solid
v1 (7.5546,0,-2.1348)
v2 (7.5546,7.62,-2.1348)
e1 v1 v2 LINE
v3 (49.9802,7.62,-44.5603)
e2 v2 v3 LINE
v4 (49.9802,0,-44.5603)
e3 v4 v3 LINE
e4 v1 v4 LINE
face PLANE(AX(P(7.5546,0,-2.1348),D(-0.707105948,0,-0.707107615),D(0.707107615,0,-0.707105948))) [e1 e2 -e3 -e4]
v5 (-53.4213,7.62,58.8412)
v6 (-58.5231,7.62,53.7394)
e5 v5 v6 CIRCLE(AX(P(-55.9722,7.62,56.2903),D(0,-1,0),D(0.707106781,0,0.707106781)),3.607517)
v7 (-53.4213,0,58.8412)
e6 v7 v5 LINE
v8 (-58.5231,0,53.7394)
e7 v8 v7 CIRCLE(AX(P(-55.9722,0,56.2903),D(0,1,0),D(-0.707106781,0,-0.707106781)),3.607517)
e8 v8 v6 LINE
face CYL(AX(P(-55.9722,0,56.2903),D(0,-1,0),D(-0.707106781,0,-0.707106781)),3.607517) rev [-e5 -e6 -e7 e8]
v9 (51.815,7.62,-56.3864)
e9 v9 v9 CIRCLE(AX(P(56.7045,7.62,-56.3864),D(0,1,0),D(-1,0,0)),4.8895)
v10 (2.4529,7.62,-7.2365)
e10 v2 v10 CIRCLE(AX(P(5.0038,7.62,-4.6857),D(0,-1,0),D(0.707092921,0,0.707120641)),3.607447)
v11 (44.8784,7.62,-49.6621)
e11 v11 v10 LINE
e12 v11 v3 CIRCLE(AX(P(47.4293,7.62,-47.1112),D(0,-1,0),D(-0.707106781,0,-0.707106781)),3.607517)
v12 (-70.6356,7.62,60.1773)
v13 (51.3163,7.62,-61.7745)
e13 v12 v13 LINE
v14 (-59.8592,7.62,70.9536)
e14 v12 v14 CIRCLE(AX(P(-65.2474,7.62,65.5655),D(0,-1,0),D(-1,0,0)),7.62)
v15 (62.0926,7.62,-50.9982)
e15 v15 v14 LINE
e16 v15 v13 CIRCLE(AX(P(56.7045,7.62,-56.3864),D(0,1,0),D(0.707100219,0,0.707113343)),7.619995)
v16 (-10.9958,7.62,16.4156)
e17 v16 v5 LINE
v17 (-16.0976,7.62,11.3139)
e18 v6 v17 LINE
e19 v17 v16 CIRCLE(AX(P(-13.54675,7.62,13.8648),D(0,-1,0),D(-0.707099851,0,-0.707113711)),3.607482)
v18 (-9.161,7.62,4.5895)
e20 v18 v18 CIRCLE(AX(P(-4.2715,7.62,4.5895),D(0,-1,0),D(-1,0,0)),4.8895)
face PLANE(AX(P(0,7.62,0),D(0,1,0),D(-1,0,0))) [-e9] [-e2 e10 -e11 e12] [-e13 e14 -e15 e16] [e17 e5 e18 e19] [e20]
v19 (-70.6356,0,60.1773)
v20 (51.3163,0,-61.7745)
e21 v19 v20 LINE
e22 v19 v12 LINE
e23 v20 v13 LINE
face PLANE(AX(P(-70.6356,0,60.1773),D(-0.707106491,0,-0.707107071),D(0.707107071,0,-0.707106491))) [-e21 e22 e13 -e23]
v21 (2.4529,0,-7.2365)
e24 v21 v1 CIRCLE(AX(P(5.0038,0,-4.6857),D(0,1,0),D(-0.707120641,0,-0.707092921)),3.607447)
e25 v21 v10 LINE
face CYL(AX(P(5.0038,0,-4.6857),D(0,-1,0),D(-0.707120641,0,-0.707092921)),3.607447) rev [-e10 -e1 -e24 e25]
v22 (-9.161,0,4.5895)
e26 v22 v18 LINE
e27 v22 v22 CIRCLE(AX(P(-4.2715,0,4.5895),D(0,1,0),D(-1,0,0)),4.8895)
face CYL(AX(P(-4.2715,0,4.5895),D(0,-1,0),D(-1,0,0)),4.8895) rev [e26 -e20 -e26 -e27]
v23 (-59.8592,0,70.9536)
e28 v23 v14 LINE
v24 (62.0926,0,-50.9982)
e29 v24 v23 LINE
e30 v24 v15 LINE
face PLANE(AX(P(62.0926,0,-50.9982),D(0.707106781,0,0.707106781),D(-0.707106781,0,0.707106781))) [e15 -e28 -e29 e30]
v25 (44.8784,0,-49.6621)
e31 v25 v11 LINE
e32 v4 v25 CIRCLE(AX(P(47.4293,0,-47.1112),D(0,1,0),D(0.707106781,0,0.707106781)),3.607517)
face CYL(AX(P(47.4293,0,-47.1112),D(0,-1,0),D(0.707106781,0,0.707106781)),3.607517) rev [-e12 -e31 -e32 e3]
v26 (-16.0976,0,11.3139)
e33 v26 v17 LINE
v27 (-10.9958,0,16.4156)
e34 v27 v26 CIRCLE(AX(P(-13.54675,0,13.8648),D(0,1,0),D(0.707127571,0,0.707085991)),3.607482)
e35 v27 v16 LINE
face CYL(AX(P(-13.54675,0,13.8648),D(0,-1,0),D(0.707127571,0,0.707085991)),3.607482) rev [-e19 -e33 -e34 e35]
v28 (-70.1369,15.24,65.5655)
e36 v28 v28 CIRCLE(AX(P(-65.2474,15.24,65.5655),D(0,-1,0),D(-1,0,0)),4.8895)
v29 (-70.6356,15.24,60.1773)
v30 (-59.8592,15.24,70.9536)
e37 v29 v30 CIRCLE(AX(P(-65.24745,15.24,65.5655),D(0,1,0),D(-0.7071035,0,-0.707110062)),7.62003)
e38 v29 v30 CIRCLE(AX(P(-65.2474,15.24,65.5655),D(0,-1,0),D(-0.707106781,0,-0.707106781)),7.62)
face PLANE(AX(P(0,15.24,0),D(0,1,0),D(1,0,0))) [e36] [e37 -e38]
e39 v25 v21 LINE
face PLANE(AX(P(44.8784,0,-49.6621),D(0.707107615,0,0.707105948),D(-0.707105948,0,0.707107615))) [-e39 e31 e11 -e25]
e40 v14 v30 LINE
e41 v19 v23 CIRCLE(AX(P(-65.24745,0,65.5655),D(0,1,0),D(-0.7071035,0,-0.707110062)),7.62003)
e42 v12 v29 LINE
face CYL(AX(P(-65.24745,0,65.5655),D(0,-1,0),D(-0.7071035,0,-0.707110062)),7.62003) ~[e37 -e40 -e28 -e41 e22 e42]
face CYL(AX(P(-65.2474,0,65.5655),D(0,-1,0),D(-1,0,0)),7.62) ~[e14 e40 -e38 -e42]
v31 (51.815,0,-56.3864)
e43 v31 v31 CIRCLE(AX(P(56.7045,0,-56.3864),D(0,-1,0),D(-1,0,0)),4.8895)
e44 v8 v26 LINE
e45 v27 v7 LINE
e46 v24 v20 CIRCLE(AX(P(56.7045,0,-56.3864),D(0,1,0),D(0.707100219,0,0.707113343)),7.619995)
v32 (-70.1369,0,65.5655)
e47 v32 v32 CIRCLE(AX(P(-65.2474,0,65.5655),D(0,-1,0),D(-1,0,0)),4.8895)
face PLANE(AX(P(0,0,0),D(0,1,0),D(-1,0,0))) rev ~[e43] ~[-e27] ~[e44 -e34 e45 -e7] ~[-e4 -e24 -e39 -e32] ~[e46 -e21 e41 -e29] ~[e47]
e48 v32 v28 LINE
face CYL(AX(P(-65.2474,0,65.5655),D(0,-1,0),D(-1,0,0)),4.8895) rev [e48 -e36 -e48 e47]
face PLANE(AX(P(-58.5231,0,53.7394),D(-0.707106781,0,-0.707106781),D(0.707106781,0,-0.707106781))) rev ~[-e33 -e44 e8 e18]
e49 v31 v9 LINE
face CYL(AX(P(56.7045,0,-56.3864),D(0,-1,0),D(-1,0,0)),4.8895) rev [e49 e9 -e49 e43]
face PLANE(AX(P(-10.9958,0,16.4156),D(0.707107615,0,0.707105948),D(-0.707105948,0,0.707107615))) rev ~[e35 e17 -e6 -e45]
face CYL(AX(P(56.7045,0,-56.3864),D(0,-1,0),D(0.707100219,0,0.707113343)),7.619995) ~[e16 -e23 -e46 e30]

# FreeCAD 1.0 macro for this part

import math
import FreeCAD as App
import Part
import Sketcher

V = App.Vector
Q = App.Units.Quantity

doc = App.newDocument("Part")
params = doc.addObject("Spreadsheet::Sheet", "Params")
for row, (alias, value) in enumerate([
    ("sketch1_radius", "0.25 in"),
    ("sketch1_diameter", "0.385 in"),
    ("sketch1_length", "6.79 in"),
    ("pad1_length", "0.3 in"),
    ("sketch2_diameter", "0.5 in"),
    ("sketch2_diameter2", "0.385 in"),
    ("pad2_length", "0.3 in"),
    ("sketch3_radius", "0.25 in"),
    ("sketch3_radius2", "0.3 in"),
    ("sketch3_length", "6.79 in"),
    ("pad3_length", "0.3 in"),
    ("sketch4_radius", "0.3 in"),
    ("pad4_length", "0.6 in"),
    ("sketch5_diameter", "0.385 in"),
    ("pocket1_length", "1 in"),
], start=1):
    params.set(f"A{row}", alias)
    params.set(f"B{row}", "=" + value)
    params.setAlias(f"B{row}", alias)

body = doc.addObject("PartDesign::Body", "Body")

sketch1 = body.newObject("Sketcher::SketchObject", "Sketch")
sketch1.AttachmentSupport = (doc.getObject("XZ_Plane"), [""])
sketch1.MapMode = "FlatFace"
sketch1.addGeometry(Part.LineSegment(V(52.2, -60.9, 0), V(-69.7, 61.1, 0)), False)
sketch1.addGeometry(Part.ArcOfCircle(Part.Circle(V(-65.2, 65.6, 0), V(0, 0, 1), 6.3), math.radians(45), math.radians(225)), False)
sketch1.addGeometry(Part.LineSegment(V(-60.8, 70.1, 0), V(61.2, -51.9, 0)), False)
sketch1.addGeometry(Part.ArcOfCircle(Part.Circle(V(56.7, -56.4, 0), V(0, 0, 1), 6.3), math.radians(-135), math.radians(45)), False)
sketch1.addGeometry(Part.Circle(V(56.7, -56.4, 0), V(0, 0, 1), 4.9), False)
sketch1.addGeometry(Part.ArcOfCircle(Part.Circle(V(47.4, -47.1, 0), V(0, 0, 1), 3.6), math.radians(-135), math.radians(45)), False)
sketch1.addGeometry(Part.LineSegment(V(50, -44.6, 0), V(7.6, -2.1, 0)), False)
sketch1.addGeometry(Part.ArcOfCircle(Part.Circle(V(5, -4.7, 0), V(0, 0, 1), 3.6), math.radians(45), math.radians(225)), False)
sketch1.addGeometry(Part.LineSegment(V(2.5, -7.2, 0), V(44.9, -49.7, 0)), False)
sketch1.addGeometry(Part.Circle(V(-4.3, 4.6, 0), V(0, 0, 1), 4.9), False)
sketch1.addGeometry(Part.ArcOfCircle(Part.Circle(V(-13.5, 13.9, 0), V(0, 0, 1), 3.6), math.radians(-135), math.radians(45)), False)
sketch1.addGeometry(Part.LineSegment(V(-11, 16.4, 0), V(-53.4, 58.8, 0)), False)
sketch1.addGeometry(Part.ArcOfCircle(Part.Circle(V(-56, 56.3, 0), V(0, 0, 1), 3.6), math.radians(45), math.radians(225)), False)
sketch1.addGeometry(Part.LineSegment(V(-58.5, 53.7, 0), V(-16.1, 11.3, 0)), False)
sketch1.addGeometry(Part.Circle(V(-65.2, 65.6, 0), V(0, 0, 1), 4.9), False)
sketch1.addConstraint(Sketcher.Constraint("Tangent", 0, 2, 1, 2))
sketch1.addConstraint(Sketcher.Constraint("Tangent", 1, 1, 2, 1))
sketch1.addConstraint(Sketcher.Constraint("Tangent", 2, 2, 3, 2))
sketch1.addConstraint(Sketcher.Constraint("Tangent", 3, 1, 0, 1))
sketch1.addConstraint(Sketcher.Constraint("Tangent", 5, 2, 6, 1))
sketch1.addConstraint(Sketcher.Constraint("Tangent", 6, 2, 7, 1))
sketch1.addConstraint(Sketcher.Constraint("Tangent", 7, 2, 8, 1))
sketch1.addConstraint(Sketcher.Constraint("Tangent", 8, 2, 5, 1))
sketch1.addConstraint(Sketcher.Constraint("Tangent", 10, 2, 11, 1))
sketch1.addConstraint(Sketcher.Constraint("Tangent", 11, 2, 12, 1))
sketch1.addConstraint(Sketcher.Constraint("Tangent", 12, 2, 13, 1))
sketch1.addConstraint(Sketcher.Constraint("Tangent", 13, 2, 10, 1))
sketch1.addConstraint(Sketcher.Constraint("Coincident", 4, 3, 3, 3))
sketch1.addConstraint(Sketcher.Constraint("Coincident", 14, 3, 1, 3))
sketch1.addConstraint(Sketcher.Constraint("Equal", 1, 3))
sketch1.addConstraint(Sketcher.Constraint("Equal", 5, 7))
sketch1.addConstraint(Sketcher.Constraint("Equal", 4, 9))
sketch1.addConstraint(Sketcher.Constraint("Equal", 7, 10))
sketch1.addConstraint(Sketcher.Constraint("Equal", 10, 12))
sketch1.addConstraint(Sketcher.Constraint("Equal", 9, 14))
sketch1.addConstraint(Sketcher.Constraint("Parallel", 2, 6))
sketch1.addConstraint(Sketcher.Constraint("Parallel", 8, 11))
sketch1.addConstraint(Sketcher.Constraint("Equal", 8, 11))
sketch1.addConstraint(Sketcher.Constraint("Radius", 1, Q("0.25 in")))
sketch1.addConstraint(Sketcher.Constraint("Diameter", 4, Q("0.385 in")))
sketch1.addConstraint(Sketcher.Constraint("Distance", 0, Q("6.79 in")))
sketch1.addConstraint(Sketcher.Constraint("Angle", 0, Q("135 deg")))
sketch1.addConstraint(Sketcher.Constraint("Radius", 5, Q("3.6075 mm")))
sketch1.addConstraint(Sketcher.Constraint("DistanceX", -1, 1, 7, 3, Q("0.197 in")))
sketch1.addConstraint(Sketcher.Constraint("DistanceX", 1, 3, -1, 1, Q("2.5688 in")))
sketch1.addConstraint(Sketcher.Constraint("DistanceX", -1, 1, 5, 3, Q("1.8673 in")))
sketch1.addConstraint(Sketcher.Constraint("DistanceY", -1, 1, 9, 3, Q("0.1807 in")))
sketch1.addConstraint(Sketcher.Constraint("DistanceY", -1, 1, 1, 1, Q("2.7581 in")))
sketch1.addConstraint(Sketcher.Constraint("DistanceY", 7, 2, -1, 1, Q("0.2849 in")))
sketch1.addConstraint(Sketcher.Constraint("DistanceX", 10, 2, -1, 1, Q("0.4329 in")))
sketch1.addConstraint(Sketcher.Constraint("DistanceY", 3, 3, 10, 3, Q("2.7658 in")))
sketch1.addConstraint(Sketcher.Constraint("DistanceX", 0, 2, 9, 3, Q("2.5774 in")))
sketch1.setExpression("Constraints[23]", "Params.sketch1_radius")
sketch1.setExpression("Constraints[24]", "Params.sketch1_diameter")
sketch1.setExpression("Constraints[25]", "Params.sketch1_length")
pad1 = body.newObject("PartDesign::Pad", "Pad")
pad1.Profile = sketch1
pad1.setExpression("Length", "Params.pad1_length")
pad1.Reversed = True

sketch2 = body.newObject("Sketcher::SketchObject", "Sketch001")
sketch2.AttachmentSupport = (doc.getObject("XZ_Plane"), [""])
sketch2.MapMode = "FlatFace"
sketch2.AttachmentOffset = App.Placement(V(0, 0, -0.3 * 25.4), App.Rotation())
sketch2.addGeometry(Part.Circle(V(-65.2, 65.6, 0), V(0, 0, 1), 6.3), False)
sketch2.addGeometry(Part.Circle(V(-65.2, 65.6, 0), V(0, 0, 1), 4.9), False)
sketch2.addConstraint(Sketcher.Constraint("Coincident", 1, 3, 0, 3))
sketch2.addConstraint(Sketcher.Constraint("Diameter", 0, Q("0.5 in")))
sketch2.addConstraint(Sketcher.Constraint("Diameter", 1, Q("0.385 in")))
sketch2.addConstraint(Sketcher.Constraint("DistanceX", 0, 3, -1, 1, Q("2.5688 in")))
sketch2.addConstraint(Sketcher.Constraint("DistanceY", -1, 1, 0, 3, Q("65.5655 mm")))
sketch2.setExpression("Constraints[1]", "Params.sketch2_diameter")
sketch2.setExpression("Constraints[2]", "Params.sketch2_diameter2")
pad2 = body.newObject("PartDesign::Pad", "Pad001")
pad2.Profile = sketch2
pad2.setExpression("Length", "Params.pad2_length")
pad2.Reversed = True

sketch3 = body.newObject("Sketcher::SketchObject", "Sketch002")
sketch3.AttachmentSupport = (doc.getObject("XZ_Plane"), [""])
sketch3.MapMode = "FlatFace"
sketch3.addGeometry(Part.LineSegment(V(51, -62, 0), V(-71, 60, 0)), False)
sketch3.addGeometry(Part.ArcOfCircle(Part.Circle(V(-65, 66, 0), V(0, 0, 1), 8), math.radians(45), math.radians(225)), False)
sketch3.addGeometry(Part.LineSegment(V(-60, 71, 0), V(62, -51, 0)), False)
sketch3.addGeometry(Part.ArcOfCircle(Part.Circle(V(57, -56, 0), V(0, 0, 1), 8), math.radians(-135), math.radians(45)), False)
sketch3.addGeometry(Part.ArcOfCircle(Part.Circle(V(57, -56, 0), V(0, 0, 1), 6), math.radians(-135), math.radians(45)), False)
sketch3.addGeometry(Part.LineSegment(V(61, -52, 0), V(-61, 70, 0)), False)
sketch3.addGeometry(Part.ArcOfCircle(Part.Circle(V(-65, 66, 0), V(0, 0, 1), 6), math.radians(45), math.radians(225)), False)
sketch3.addGeometry(Part.LineSegment(V(-70, 61, 0), V(52, -61, 0)), False)
sketch3.addConstraint(Sketcher.Constraint("Tangent", 0, 2, 1, 2))
sketch3.addConstraint(Sketcher.Constraint("Tangent", 1, 1, 2, 1))
sketch3.addConstraint(Sketcher.Constraint("Tangent", 2, 2, 3, 2))
sketch3.addConstraint(Sketcher.Constraint("Tangent", 3, 1, 0, 1))
sketch3.addConstraint(Sketcher.Constraint("Tangent", 4, 2, 5, 1))
sketch3.addConstraint(Sketcher.Constraint("Tangent", 5, 2, 6, 1))
sketch3.addConstraint(Sketcher.Constraint("Tangent", 6, 2, 7, 1))
sketch3.addConstraint(Sketcher.Constraint("Tangent", 7, 2, 4, 1))
sketch3.addConstraint(Sketcher.Constraint("Coincident", 4, 3, 3, 3))
sketch3.addConstraint(Sketcher.Constraint("Coincident", 6, 3, 1, 3))
sketch3.addConstraint(Sketcher.Constraint("Equal", 1, 3))
sketch3.addConstraint(Sketcher.Constraint("Equal", 4, 6))
sketch3.addConstraint(Sketcher.Constraint("Radius", 4, Q("0.25 in")))
sketch3.addConstraint(Sketcher.Constraint("Radius", 1, Q("0.3 in")))
sketch3.addConstraint(Sketcher.Constraint("Distance", 0, Q("6.79 in")))
sketch3.addConstraint(Sketcher.Constraint("Angle", 0, Q("135 deg")))
sketch3.addConstraint(Sketcher.Constraint("DistanceX", 1, 3, -1, 1, Q("2.5688 in")))
sketch3.addConstraint(Sketcher.Constraint("DistanceY", 2, 2, -1, 1, Q("2.0078 in")))
sketch3.setExpression("Constraints[12]", "Params.sketch3_radius")
sketch3.setExpression("Constraints[13]", "Params.sketch3_radius2")
sketch3.setExpression("Constraints[14]", "Params.sketch3_length")
pad3 = body.newObject("PartDesign::Pad", "Pad002")
pad3.Profile = sketch3
pad3.setExpression("Length", "Params.pad3_length")
pad3.Reversed = True

sketch4 = body.newObject("Sketcher::SketchObject", "Sketch003")
sketch4.AttachmentSupport = (doc.getObject("XZ_Plane"), [""])
sketch4.MapMode = "FlatFace"
sketch4.addGeometry(Part.ArcOfCircle(Part.Circle(V(-65, 66, 0), V(0, 0, 1), 8), math.radians(45), math.radians(225)), False)
sketch4.addGeometry(Part.ArcOfCircle(Part.Circle(V(-65, 66, 0), V(0, 0, 1), 8), math.radians(-135), math.radians(45)), False)
sketch4.addConstraint(Sketcher.Constraint("Tangent", 0, 1, 1, 2))
sketch4.addConstraint(Sketcher.Constraint("Coincident", 1, 1, 0, 2))
sketch4.addConstraint(Sketcher.Constraint("Radius", 0, Q("0.3 in")))
sketch4.addConstraint(Sketcher.Constraint("DistanceX", 0, 3, -1, 1, Q("2.5688 in")))
sketch4.addConstraint(Sketcher.Constraint("DistanceY", -1, 1, 0, 3, Q("65.5655 mm")))
sketch4.addConstraint(Sketcher.Constraint("DistanceX", 0, 1, -1, 1, Q("59.8592 mm")))
sketch4.addConstraint(Sketcher.Constraint("DistanceX", 1, 1, -1, 1, Q("70.6356 mm")))
sketch4.setExpression("Constraints[2]", "Params.sketch4_radius")
pad4 = body.newObject("PartDesign::Pad", "Pad003")
pad4.Profile = sketch4
pad4.setExpression("Length", "Params.pad4_length")
pad4.Reversed = True

sketch5 = body.newObject("Sketcher::SketchObject", "Sketch004")
sketch5.AttachmentSupport = (doc.getObject("XZ_Plane"), [""])
sketch5.MapMode = "FlatFace"
sketch5.addGeometry(Part.Circle(V(-65.2, 65.6, 0), V(0, 0, 1), 4.9), False)
sketch5.addConstraint(Sketcher.Constraint("Diameter", 0, Q("0.385 in")))
sketch5.addConstraint(Sketcher.Constraint("DistanceX", 0, 3, -1, 1, Q("2.5688 in")))
sketch5.addConstraint(Sketcher.Constraint("DistanceY", -1, 1, 0, 3, Q("65.5655 mm")))
sketch5.setExpression("Constraints[0]", "Params.sketch5_diameter")
pocket1 = body.newObject("PartDesign::Pocket", "Pocket")
pocket1.Profile = sketch5
pocket1.setExpression("Length", "Params.pocket1_length")

doc.recompute()
